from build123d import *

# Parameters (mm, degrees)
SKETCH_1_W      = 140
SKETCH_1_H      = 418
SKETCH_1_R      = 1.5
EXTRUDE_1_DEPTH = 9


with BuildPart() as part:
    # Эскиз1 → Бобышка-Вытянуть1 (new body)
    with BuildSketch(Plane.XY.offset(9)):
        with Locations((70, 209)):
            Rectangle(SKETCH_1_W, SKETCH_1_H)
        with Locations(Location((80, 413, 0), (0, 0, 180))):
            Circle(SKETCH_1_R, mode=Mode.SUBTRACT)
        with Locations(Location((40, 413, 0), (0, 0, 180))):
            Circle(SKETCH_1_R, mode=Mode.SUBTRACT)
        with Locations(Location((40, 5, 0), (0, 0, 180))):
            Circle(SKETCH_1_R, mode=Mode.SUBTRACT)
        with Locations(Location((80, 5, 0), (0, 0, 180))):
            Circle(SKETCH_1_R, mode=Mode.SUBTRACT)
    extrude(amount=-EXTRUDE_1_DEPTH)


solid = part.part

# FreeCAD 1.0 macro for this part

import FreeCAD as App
import Part
import Sketcher

V = App.Vector

doc = App.newDocument("Part")
params = doc.addObject("Spreadsheet::Sheet", "Params")
for row, (alias, value) in enumerate([
    ("sketch1_diameter", "3 mm"),
    ("sketch1_width", "140 mm"),
    ("sketch1_height", "418 mm"),
    ("pad1_length", "9 mm"),
], start=1):
    params.set(f"A{row}", alias)
    params.set(f"B{row}", "=" + value)
    params.setAlias(f"B{row}", alias)

body = doc.addObject("PartDesign::Body", "Body")

# Sketch on XY plane
sketch1 = doc.addObject("Sketcher::SketchObject", "Sketch")
body.addObject(sketch1)
sketch1.AttachmentSupport = (doc.XY_Plane, [""])
sketch1.MapMode = "FlatFace"
sketch1.AttachmentOffset = App.Placement(V(0, 0, 9), App.Rotation())
sketch1.addGeometry(Part.LineSegment(V(0, 418, 0), V(0, 0, 0)), False)
sketch1.addGeometry(Part.LineSegment(V(0, 0, 0), V(140, 0, 0)), False)
sketch1.addGeometry(Part.LineSegment(V(140, 0, 0), V(140, 418, 0)), False)
sketch1.addGeometry(Part.LineSegment(V(140, 418, 0), V(0, 418, 0)), False)
sketch1.addGeometry(Part.Circle(V(40, 5, 0), V(0, 0, 1), 1.5), False)
sketch1.addGeometry(Part.Circle(V(80, 5, 0), V(0, 0, 1), 1.5), False)
sketch1.addGeometry(Part.Circle(V(40, 413, 0), V(0, 0, 1), 1.5), False)
sketch1.addGeometry(Part.Circle(V(80, 413, 0), V(0, 0, 1), 1.5), False)
sketch1.addConstraint(Sketcher.Constraint("Coincident", 0, 2, 1, 1))
sketch1.addConstraint(Sketcher.Constraint("Coincident", 1, 2, 2, 1))
sketch1.addConstraint(Sketcher.Constraint("Coincident", 2, 2, 3, 1))
sketch1.addConstraint(Sketcher.Constraint("Coincident", 3, 2, 0, 1))
sketch1.addConstraint(Sketcher.Constraint("Vertical", 0))
sketch1.addConstraint(Sketcher.Constraint("Horizontal", 1))
sketch1.addConstraint(Sketcher.Constraint("Vertical", 2))
sketch1.addConstraint(Sketcher.Constraint("Horizontal", 3))
sketch1.addConstraint(Sketcher.Constraint("Coincident", 0, 2, -1, 1))
sketch1.addConstraint(Sketcher.Constraint("Equal", 4, 5))
sketch1.addConstraint(Sketcher.Constraint("Equal", 5, 6))
sketch1.addConstraint(Sketcher.Constraint("Equal", 6, 7))
sketch1.addConstraint(Sketcher.Constraint("Horizontal", 4, 3, 5, 3))
sketch1.addConstraint(Sketcher.Constraint("Horizontal", 6, 3, 7, 3))
sketch1.addConstraint(Sketcher.Constraint("Vertical", 4, 3, 6, 3))
sketch1.addConstraint(Sketcher.Constraint("Vertical", 5, 3, 7, 3))
sketch1.addConstraint(Sketcher.Constraint("Diameter", 4, 3.0))
sketch1.addConstraint(Sketcher.Constraint("DistanceX", 1, 1, 1, 2, 140.0))
sketch1.addConstraint(Sketcher.Constraint("DistanceY", 0, 2, 0, 1, 418.0))
sketch1.addConstraint(Sketcher.Constraint("DistanceX", -1, 1, 4, 3, 40.0))
sketch1.addConstraint(Sketcher.Constraint("DistanceY", -1, 1, 4, 3, 5.0))
sketch1.addConstraint(Sketcher.Constraint("DistanceX", -1, 1, 5, 3, 80.0))
sketch1.addConstraint(Sketcher.Constraint("DistanceY", -1, 1, 6, 3, 413.0))
sketch1.setExpression("Constraints[16]", "Params.sketch1_diameter")
sketch1.setExpression("Constraints[17]", "Params.sketch1_width")
sketch1.setExpression("Constraints[18]", "Params.sketch1_height")
pad1 = doc.addObject("PartDesign::Pad", "Pad")
body.addObject(pad1)
pad1.Profile = sketch1
pad1.setExpression("Length", "Params.pad1_length")
pad1.Reversed = True

doc.recompute()
